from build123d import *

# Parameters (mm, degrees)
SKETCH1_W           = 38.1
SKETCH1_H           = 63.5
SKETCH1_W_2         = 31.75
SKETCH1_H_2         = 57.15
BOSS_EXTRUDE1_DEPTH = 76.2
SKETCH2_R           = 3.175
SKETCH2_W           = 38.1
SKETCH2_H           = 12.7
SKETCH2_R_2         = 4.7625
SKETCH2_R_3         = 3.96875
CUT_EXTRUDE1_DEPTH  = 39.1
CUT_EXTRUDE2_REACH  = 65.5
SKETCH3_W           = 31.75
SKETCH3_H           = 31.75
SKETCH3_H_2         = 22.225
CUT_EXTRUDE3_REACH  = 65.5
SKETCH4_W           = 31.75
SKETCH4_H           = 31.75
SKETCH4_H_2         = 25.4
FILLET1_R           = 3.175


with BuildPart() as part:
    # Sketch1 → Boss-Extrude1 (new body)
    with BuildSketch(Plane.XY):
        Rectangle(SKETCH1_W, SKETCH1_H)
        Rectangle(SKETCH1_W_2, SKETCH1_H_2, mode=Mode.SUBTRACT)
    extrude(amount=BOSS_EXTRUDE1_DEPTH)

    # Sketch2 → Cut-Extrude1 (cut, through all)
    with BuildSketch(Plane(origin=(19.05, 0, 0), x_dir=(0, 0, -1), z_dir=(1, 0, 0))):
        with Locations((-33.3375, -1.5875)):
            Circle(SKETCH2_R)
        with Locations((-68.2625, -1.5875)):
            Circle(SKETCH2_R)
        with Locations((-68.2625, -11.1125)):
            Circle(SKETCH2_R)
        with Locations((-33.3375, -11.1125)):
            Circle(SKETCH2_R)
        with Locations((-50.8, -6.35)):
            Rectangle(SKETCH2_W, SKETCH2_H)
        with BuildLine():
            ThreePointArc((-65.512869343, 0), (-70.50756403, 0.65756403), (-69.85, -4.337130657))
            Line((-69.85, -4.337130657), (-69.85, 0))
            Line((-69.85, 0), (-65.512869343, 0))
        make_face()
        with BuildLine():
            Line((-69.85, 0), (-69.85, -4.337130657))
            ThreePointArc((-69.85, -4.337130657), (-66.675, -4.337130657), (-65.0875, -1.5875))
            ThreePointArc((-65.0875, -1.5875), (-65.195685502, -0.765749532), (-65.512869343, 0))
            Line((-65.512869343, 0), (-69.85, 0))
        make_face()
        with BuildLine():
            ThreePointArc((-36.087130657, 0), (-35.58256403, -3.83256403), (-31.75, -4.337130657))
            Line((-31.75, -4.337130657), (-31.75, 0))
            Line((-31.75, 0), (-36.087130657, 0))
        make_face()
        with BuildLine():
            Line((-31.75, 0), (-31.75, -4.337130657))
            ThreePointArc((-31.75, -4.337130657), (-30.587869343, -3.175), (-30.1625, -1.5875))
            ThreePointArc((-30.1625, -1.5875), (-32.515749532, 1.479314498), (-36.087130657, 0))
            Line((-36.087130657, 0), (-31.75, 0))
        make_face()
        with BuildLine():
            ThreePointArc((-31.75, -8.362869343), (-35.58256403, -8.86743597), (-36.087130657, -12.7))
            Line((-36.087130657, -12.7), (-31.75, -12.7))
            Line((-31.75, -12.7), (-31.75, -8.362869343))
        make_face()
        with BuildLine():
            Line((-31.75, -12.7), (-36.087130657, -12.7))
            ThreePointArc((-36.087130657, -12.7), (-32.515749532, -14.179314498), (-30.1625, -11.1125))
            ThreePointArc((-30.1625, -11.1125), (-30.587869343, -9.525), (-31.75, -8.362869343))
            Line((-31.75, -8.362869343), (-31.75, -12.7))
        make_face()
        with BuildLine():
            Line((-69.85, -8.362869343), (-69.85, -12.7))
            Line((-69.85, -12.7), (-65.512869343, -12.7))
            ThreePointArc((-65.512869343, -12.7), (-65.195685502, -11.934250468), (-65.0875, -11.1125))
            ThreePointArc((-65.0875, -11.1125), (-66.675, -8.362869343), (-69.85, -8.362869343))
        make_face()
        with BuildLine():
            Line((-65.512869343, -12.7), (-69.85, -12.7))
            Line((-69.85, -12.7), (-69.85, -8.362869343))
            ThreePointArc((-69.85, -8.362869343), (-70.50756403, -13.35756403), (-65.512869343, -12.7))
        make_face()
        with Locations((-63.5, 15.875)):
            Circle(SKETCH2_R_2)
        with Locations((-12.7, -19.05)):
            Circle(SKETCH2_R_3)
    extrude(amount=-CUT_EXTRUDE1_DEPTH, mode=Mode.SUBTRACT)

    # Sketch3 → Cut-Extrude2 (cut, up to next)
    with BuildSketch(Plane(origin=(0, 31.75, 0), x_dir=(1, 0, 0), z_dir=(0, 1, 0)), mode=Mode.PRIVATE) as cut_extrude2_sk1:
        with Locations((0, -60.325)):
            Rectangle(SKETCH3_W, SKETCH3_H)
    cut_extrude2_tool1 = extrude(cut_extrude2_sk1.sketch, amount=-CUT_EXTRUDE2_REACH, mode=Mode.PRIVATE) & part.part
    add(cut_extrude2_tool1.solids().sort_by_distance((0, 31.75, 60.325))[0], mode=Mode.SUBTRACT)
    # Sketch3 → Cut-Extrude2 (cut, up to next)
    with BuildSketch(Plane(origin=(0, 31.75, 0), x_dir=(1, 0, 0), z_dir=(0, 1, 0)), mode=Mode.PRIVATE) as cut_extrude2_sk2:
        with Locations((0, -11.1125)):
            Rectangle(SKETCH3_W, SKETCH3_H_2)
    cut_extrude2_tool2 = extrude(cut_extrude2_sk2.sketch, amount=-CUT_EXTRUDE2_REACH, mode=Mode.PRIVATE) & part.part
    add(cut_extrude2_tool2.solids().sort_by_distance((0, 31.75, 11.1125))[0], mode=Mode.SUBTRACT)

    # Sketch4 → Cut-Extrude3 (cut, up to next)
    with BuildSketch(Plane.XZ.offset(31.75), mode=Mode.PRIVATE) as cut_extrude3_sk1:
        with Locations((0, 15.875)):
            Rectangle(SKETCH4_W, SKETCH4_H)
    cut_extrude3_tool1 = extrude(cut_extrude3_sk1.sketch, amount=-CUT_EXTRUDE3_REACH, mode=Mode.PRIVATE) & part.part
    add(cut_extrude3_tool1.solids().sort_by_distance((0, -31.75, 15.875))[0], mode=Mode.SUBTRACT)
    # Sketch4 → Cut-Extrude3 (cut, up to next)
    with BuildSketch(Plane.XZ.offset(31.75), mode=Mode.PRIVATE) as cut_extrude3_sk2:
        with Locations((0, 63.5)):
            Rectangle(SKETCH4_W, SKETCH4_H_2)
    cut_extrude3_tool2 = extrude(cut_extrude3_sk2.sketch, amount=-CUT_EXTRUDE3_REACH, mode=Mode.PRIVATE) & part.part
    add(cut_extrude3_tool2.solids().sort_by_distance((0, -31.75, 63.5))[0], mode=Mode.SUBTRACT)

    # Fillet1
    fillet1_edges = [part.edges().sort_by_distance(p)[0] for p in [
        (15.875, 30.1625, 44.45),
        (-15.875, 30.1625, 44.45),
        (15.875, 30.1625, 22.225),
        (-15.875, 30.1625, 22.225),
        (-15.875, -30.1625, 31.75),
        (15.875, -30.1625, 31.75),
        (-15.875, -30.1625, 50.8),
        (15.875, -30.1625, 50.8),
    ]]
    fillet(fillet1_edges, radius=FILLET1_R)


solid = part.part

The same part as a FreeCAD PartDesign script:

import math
import FreeCAD as App
import Part
import Sketcher

V = App.Vector
Q = App.Units.Quantity


def edges_at(feature, points):
    """Names of the edges that pass closest to the given points."""
    edges = feature.Shape.Edges
    near = lambda p: min(range(len(edges)), key=lambda i: edges[i].distToShape(Part.Vertex(*p))[0])
    return sorted({f"Edge{near(p) + 1}" for p in points})


def add_polygon(sketch, points):
    """Adds a closed chain of lines whose ends are joined by coincident constraints."""
    first, n = sketch.GeometryCount, len(points)
    for a, b in zip(points, points[1:] + points[:1]):
        sketch.addGeometry(Part.LineSegment(App.Vector(*a, 0), App.Vector(*b, 0)), False)
    for i in range(n):
        sketch.addConstraint(Sketcher.Constraint("Coincident", first + i, 2, first + (i + 1) % n, 1))

doc = App.newDocument("Part")
body = doc.addObject("PartDesign::Body", "Body")

sketch1 = doc.addObject("Sketcher::SketchObject", "Sketch")
body.addObject(sketch1)
sketch1.AttachmentSupport = (doc.XY_Plane, [""])
sketch1.MapMode = "FlatFace"
add_polygon(sketch1, [(-19.05, 31.75), (-19.05, -31.75), (19.05, -31.75), (19.05, 31.75)])
add_polygon(sketch1, [(15.875, -28.575), (-15.875, -28.575), (-15.875, 28.575), (15.875, 28.575)])
sketch1.addConstraint([
    Sketcher.Constraint("Vertical", 0),
    Sketcher.Constraint("Horizontal", 1),
    Sketcher.Constraint("Vertical", 2),
    Sketcher.Constraint("Horizontal", 3),
    Sketcher.Constraint("Horizontal", 4),
    Sketcher.Constraint("Vertical", 5),
    Sketcher.Constraint("Horizontal", 6),
    Sketcher.Constraint("Vertical", 7),
    Sketcher.Constraint("Symmetric", 0, 2, 2, 2, -1, 1),
    Sketcher.Constraint("Symmetric", 4, 2, 6, 2, -1, 1),
    Sketcher.Constraint("DistanceX", 1, 1, 1, 2, Q("1.5 in")),
    Sketcher.Constraint("DistanceY", 0, 2, 0, 1, Q("2.5 in")),
    Sketcher.Constraint("DistanceX", 4, 2, 4, 1, Q("1.25 in")),
    Sketcher.Constraint("DistanceY", 5, 1, 5, 2, Q("2.25 in")),
])
pad1 = doc.addObject("PartDesign::Pad", "Pad")
body.addObject(pad1)
pad1.Profile = sketch1
pad1.Length = Q("3 in")

sketch2 = doc.addObject("Sketcher::SketchObject", "Sketch001")
body.addObject(sketch2)
sketch2.AttachmentSupport = (doc.YZ_Plane, [""])
sketch2.MapMode = "FlatFace"
sketch2.AttachmentOffset = App.Placement(V(0, 0, 0.75 * 25.4), App.Rotation())
sketch2.addGeometry([
    Part.ArcOfCircle(Part.Circle(V(-11.1125, 68.2625, 0), V(0, 0, 1), 3.175), math.radians(30), math.radians(240)),
    Part.LineSegment(V(-12.7, 65.512869, 0), V(-12.7, 36.087131, 0)),
    Part.ArcOfCircle(Part.Circle(V(-11.1125, 33.3375, 0), V(0, 0, 1), 3.175), math.radians(120), math.radians(330)),
    Part.LineSegment(V(-8.362869, 31.75, 0), V(-4.337131, 31.75, 0)),
    Part.ArcOfCircle(Part.Circle(V(-1.5875, 33.3375, 0), V(0, 0, 1), 3.175), math.radians(-150), math.radians(60)),
    Part.LineSegment(V(0, 36.087131, 0), V(0, 65.512869, 0)),
    Part.ArcOfCircle(Part.Circle(V(-1.5875, 68.2625, 0), V(0, 0, 1), 3.175), math.radians(-60), math.radians(150)),
    Part.LineSegment(V(-4.337131, 69.85, 0), V(-8.362869, 69.85, 0)),
    Part.Circle(V(15.875, 63.5, 0), V(0, 0, 1), 4.7625),
    Part.Circle(V(-19.05, 12.7, 0), V(0, 0, 1), 3.96875),
], False)
sketch2.addConstraint([
    Sketcher.Constraint("Coincident", 0, 2, 1, 1),
    Sketcher.Constraint("Coincident", 1, 2, 2, 1),
    Sketcher.Constraint("Coincident", 2, 2, 3, 1),
    Sketcher.Constraint("Coincident", 3, 2, 4, 1),
    Sketcher.Constraint("Coincident", 4, 2, 5, 1),
    Sketcher.Constraint("Coincident", 5, 2, 6, 1),
    Sketcher.Constraint("Coincident", 6, 2, 7, 1),
    Sketcher.Constraint("Coincident", 7, 2, 0, 1),
    Sketcher.Constraint("Vertical", 1),
    Sketcher.Constraint("Horizontal", 3),
    Sketcher.Constraint("Vertical", 5),
    Sketcher.Constraint("Horizontal", 7),
    Sketcher.Constraint("Equal", 0, 2),
    Sketcher.Constraint("Equal", 2, 4),
    Sketcher.Constraint("Equal", 4, 6),
    Sketcher.Constraint("PointOnObject", 4, 2, -2),
    Sketcher.Constraint("Horizontal", 2, 3, 4, 3),
    Sketcher.Constraint("Horizontal", 0, 3, 6, 3),
    Sketcher.Constraint("Horizontal", 1, 2, 4, 2),
    Sketcher.Constraint("Horizontal", 0, 2, 5, 2),
    Sketcher.Constraint("Vertical", 0, 3, 2, 3),
    Sketcher.Constraint("Vertical", 3, 2, 6, 2),
    Sketcher.Constraint("Diameter", 8, Q("0.375 in")),
    Sketcher.Constraint("Diameter", 9, Q("0.3125 in")),
    Sketcher.Constraint("Radius", 0, Q("0.125 in")),
    Sketcher.Constraint("DistanceY", 9, 3, 8, 3, Q("2 in")),
    Sketcher.Constraint("DistanceY", -1, 1, 8, 3, Q("2.5 in")),
    Sketcher.Constraint("DistanceX", 0, 2, -1, 1, Q("0.5 in")),
    Sketcher.Constraint("DistanceX", 9, 3, -1, 1, Q("0.75 in")),
    Sketcher.Constraint("DistanceY", -1, 1, 2, 2, Q("1.25 in")),
    Sketcher.Constraint("DistanceY", -1, 1, 6, 2, Q("2.75 in")),
    Sketcher.Constraint("DistanceX", 0, 3, -1, 1, Q("0.4375 in")),
    Sketcher.Constraint("DistanceY", -1, 1, 0, 3, Q("2.6875 in")),
    Sketcher.Constraint("DistanceX", -1, 1, 8, 3, Q("0.625 in")),
])
pocket1 = doc.addObject("PartDesign::Pocket", "Pocket")
body.addObject(pocket1)
pocket1.Profile = sketch2
pocket1.Type = "ThroughAll"

sketch3 = doc.addObject("Sketcher::SketchObject", "Sketch002")
body.addObject(sketch3)
sketch3.AttachmentSupport = (doc.XZ_Plane, [""])
sketch3.MapMode = "FlatFace"
sketch3.AttachmentOffset = App.Placement(V(0, 0, -1.25 * 25.4), App.Rotation())
add_polygon(sketch3, [(-15.875, 44.45), (-15.875, 76.2), (15.875, 76.2), (15.875, 44.45)])
sketch3.addConstraint([
    Sketcher.Constraint("Vertical", 0),
    Sketcher.Constraint("Horizontal", 1),
    Sketcher.Constraint("Vertical", 2),
    Sketcher.Constraint("Horizontal", 3),
    Sketcher.Constraint("Equal", 3, 0),
    Sketcher.Constraint("DistanceY", -1, 1, 0, 2, Q("3 in")),
    Sketcher.Constraint("DistanceX", 1, 1, 1, 2, Q("1.25 in")),
    Sketcher.Constraint("DistanceX", 0, 2, -1, 1, Q("0.625 in")),
])
pocket2 = doc.addObject("PartDesign::Pocket", "Pocket001")
body.addObject(pocket2)
pocket2.Profile = sketch3
pocket2.Type = "UpToFirst"
pocket2.Reversed = True

sketch4 = doc.addObject("Sketcher::SketchObject", "Sketch003")
body.addObject(sketch4)
sketch4.AttachmentSupport = (doc.XZ_Plane, [""])
sketch4.MapMode = "FlatFace"
sketch4.AttachmentOffset = App.Placement(V(0, 0, -1.25 * 25.4), App.Rotation())
add_polygon(sketch4, [(-15.875, 0), (-15.875, 22.225), (15.875, 22.225), (15.875, 0)])
sketch4.addConstraint([
    Sketcher.Constraint("Vertical", 0),
    Sketcher.Constraint("Horizontal", 1),
    Sketcher.Constraint("Vertical", 2),
    Sketcher.Constraint("Horizontal", 3),
    Sketcher.Constraint("Symmetric", 2, 2, 3, 2, -1, 1),
    Sketcher.Constraint("DistanceX", 1, 1, 1, 2, Q("1.25 in")),
    Sketcher.Constraint("DistanceY", 0, 1, 0, 2, Q("0.875 in")),
])
pocket3 = doc.addObject("PartDesign::Pocket", "Pocket002")
body.addObject(pocket3)
pocket3.Profile = sketch4
pocket3.Type = "UpToFirst"
pocket3.Reversed = True

sketch5 = doc.addObject("Sketcher::SketchObject", "Sketch004")
body.addObject(sketch5)
sketch5.AttachmentSupport = (doc.XZ_Plane, [""])
sketch5.MapMode = "FlatFace"
sketch5.AttachmentOffset = App.Placement(V(0, 0, 1.25 * 25.4), App.Rotation())
add_polygon(sketch5, [(-15.875, 31.75), (-15.875, 0), (15.875, 0), (15.875, 31.75)])
sketch5.addConstraint([
    Sketcher.Constraint("Vertical", 0),
    Sketcher.Constraint("Horizontal", 1),
    Sketcher.Constraint("Vertical", 2),
    Sketcher.Constraint("Horizontal", 3),
    Sketcher.Constraint("Symmetric", 0, 2, 1, 2, -1, 1),
    Sketcher.Constraint("Equal", 3, 0),
    Sketcher.Constraint("DistanceX", 1, 1, 1, 2, Q("1.25 in")),
])
pocket4 = doc.addObject("PartDesign::Pocket", "Pocket003")
body.addObject(pocket4)
pocket4.Profile = sketch5
pocket4.Type = "UpToFirst"

sketch6 = doc.addObject("Sketcher::SketchObject", "Sketch005")
body.addObject(sketch6)
sketch6.AttachmentSupport = (doc.XZ_Plane, [""])
sketch6.MapMode = "FlatFace"
sketch6.AttachmentOffset = App.Placement(V(0, 0, 1.25 * 25.4), App.Rotation())
add_polygon(sketch6, [(-15.875, 76.2), (-15.875, 50.8), (15.875, 50.8), (15.875, 76.2)])
sketch6.addConstraint([
    Sketcher.Constraint("Vertical", 0),
    Sketcher.Constraint("Horizontal", 1),
    Sketcher.Constraint("Vertical", 2),
    Sketcher.Constraint("Horizontal", 3),
    Sketcher.Constraint("DistanceY", 0, 2, 0, 1, Q("1 in")),
    Sketcher.Constraint("DistanceY", -1, 1, 0, 2, Q("2 in")),
    Sketcher.Constraint("DistanceX", 1, 1, 1, 2, Q("1.25 in")),
    Sketcher.Constraint("DistanceX", 0, 2, -1, 1, Q("0.625 in")),
])
pocket5 = doc.addObject("PartDesign::Pocket", "Pocket004")
body.addObject(pocket5)
pocket5.Profile = sketch6
pocket5.Type = "UpToFirst"
doc.recompute()

fillet = doc.addObject("PartDesign::Fillet", "Fillet")
body.addObject(fillet)
fillet.Base = (pocket5, edges_at(pocket5, [
    (15.875, 30.163, 44.45),
    (-15.875, 30.163, 44.45),
    (15.875, 30.163, 22.225),
    (-15.875, 30.163, 22.225),
    (-15.875, -30.163, 31.75),
    (15.875, -30.163, 31.75),
    (-15.875, -30.163, 50.8),
    (15.875, -30.163, 50.8),
]))
fillet.Radius = Q("0.125 in")

doc.recompute()
